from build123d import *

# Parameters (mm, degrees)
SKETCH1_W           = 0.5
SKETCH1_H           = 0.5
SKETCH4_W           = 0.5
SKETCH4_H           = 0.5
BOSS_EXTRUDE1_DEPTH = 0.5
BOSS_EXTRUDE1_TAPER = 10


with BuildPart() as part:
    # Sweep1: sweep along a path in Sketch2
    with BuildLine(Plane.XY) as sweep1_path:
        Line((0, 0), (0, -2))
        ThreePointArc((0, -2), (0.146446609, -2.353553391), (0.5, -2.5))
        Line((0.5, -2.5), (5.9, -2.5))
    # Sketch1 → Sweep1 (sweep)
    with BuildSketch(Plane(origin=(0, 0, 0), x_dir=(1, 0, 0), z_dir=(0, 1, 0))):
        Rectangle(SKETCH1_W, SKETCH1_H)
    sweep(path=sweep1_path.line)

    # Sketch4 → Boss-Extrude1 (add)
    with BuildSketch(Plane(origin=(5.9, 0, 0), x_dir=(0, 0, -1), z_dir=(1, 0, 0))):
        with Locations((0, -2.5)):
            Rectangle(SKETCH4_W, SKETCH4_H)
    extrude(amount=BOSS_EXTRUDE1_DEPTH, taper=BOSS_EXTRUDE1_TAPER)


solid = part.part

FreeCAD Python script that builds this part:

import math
import FreeCAD as App
import Part
import Sketcher
Q = App.Units.Quantity

doc = App.newDocument("Part")
body = doc.addObject("PartDesign::Body", "Body")

sketch1 = body.newObject("Sketcher::SketchObject", "Sketch")
sketch1.AttachmentSupport = (doc.getObject("XZ_Plane"), [""])
sketch1.MapMode = "FlatFace"
sketch1.addGeometry(Part.LineSegment(App.Vector(-0.25, -0.25, 0), App.Vector(-0.25, 0.25, 0)), False)
sketch1.addGeometry(Part.LineSegment(App.Vector(-0.25, 0.25, 0), App.Vector(0.25, 0.25, 0)), False)
sketch1.addGeometry(Part.LineSegment(App.Vector(0.25, 0.25, 0), App.Vector(0.25, -0.25, 0)), False)
sketch1.addGeometry(Part.LineSegment(App.Vector(0.25, -0.25, 0), App.Vector(-0.25, -0.25, 0)), False)
sketch1.addConstraint(Sketcher.Constraint("Coincident", 0, 2, 1, 1))
sketch1.addConstraint(Sketcher.Constraint("Coincident", 1, 2, 2, 1))
sketch1.addConstraint(Sketcher.Constraint("Coincident", 2, 2, 3, 1))
sketch1.addConstraint(Sketcher.Constraint("Coincident", 3, 2, 0, 1))
sketch1.addConstraint(Sketcher.Constraint("Vertical", 0))
sketch1.addConstraint(Sketcher.Constraint("Horizontal", 1))
sketch1.addConstraint(Sketcher.Constraint("Vertical", 2))
sketch1.addConstraint(Sketcher.Constraint("Horizontal", 3))
sketch1.addConstraint(Sketcher.Constraint("Symmetric", 0, 2, 2, 2, -1, 1))
sketch1.addConstraint(Sketcher.Constraint("Equal", 3, 0))
sketch1.addConstraint(Sketcher.Constraint("DistanceX", 1, 1, 1, 2, Q("0.5 mm")))

sketch2 = body.newObject("Sketcher::SketchObject", "Sketch001")
sketch2.AttachmentSupport = (doc.getObject("XY_Plane"), [""])
sketch2.MapMode = "FlatFace"
sketch2.addGeometry(Part.LineSegment(App.Vector(0, 0, 0), App.Vector(0, -2, 0)), False)
sketch2.addGeometry(Part.ArcOfCircle(Part.Circle(App.Vector(0.5, -2, 0), App.Vector(0, 0, 1), 0.5), math.radians(180), math.radians(270)), False)
sketch2.addGeometry(Part.LineSegment(App.Vector(0.5, -2.5, 0), App.Vector(5.9, -2.5, 0)), False)
sketch2.addConstraint(Sketcher.Constraint("Tangent", 0, 2, 1, 1))
sketch2.addConstraint(Sketcher.Constraint("Tangent", 1, 2, 2, 1))
sketch2.addConstraint(Sketcher.Constraint("Vertical", 0))
sketch2.addConstraint(Sketcher.Constraint("Horizontal", 2))
sketch2.addConstraint(Sketcher.Constraint("Coincident", 0, 1, -1, 1))
sketch2.addConstraint(Sketcher.Constraint("Radius", 1, Q("0.5 mm")))
sketch2.addConstraint(Sketcher.Constraint("DistanceY", 0, 2, 0, 1, Q("2 mm")))
sketch2.addConstraint(Sketcher.Constraint("DistanceX", 2, 1, 2, 2, Q("5.4 mm")))
doc.recompute()

additivepipe = body.newObject("PartDesign::AdditivePipe", "AdditivePipe")
additivepipe.Profile = sketch1
additivepipe.Spine = (sketch2, ["Edge1", "Edge2", "Edge3"])

sketch3 = body.newObject("Sketcher::SketchObject", "Sketch002")
sketch3.AttachmentSupport = (doc.getObject("YZ_Plane"), [""])
sketch3.MapMode = "FlatFace"
sketch3.AttachmentOffset = App.Placement(App.Vector(0, 0, 5.9), App.Rotation())
sketch3.addGeometry(Part.LineSegment(App.Vector(-2.25, 0.25, 0), App.Vector(-2.75, 0.25, 0)), False)
sketch3.addGeometry(Part.LineSegment(App.Vector(-2.75, 0.25, 0), App.Vector(-2.75, -0.25, 0)), False)
sketch3.addGeometry(Part.LineSegment(App.Vector(-2.75, -0.25, 0), App.Vector(-2.25, -0.25, 0)), False)
sketch3.addGeometry(Part.LineSegment(App.Vector(-2.25, -0.25, 0), App.Vector(-2.25, 0.25, 0)), False)
sketch3.addConstraint(Sketcher.Constraint("Coincident", 0, 2, 1, 1))
sketch3.addConstraint(Sketcher.Constraint("Coincident", 1, 2, 2, 1))
sketch3.addConstraint(Sketcher.Constraint("Coincident", 2, 2, 3, 1))
sketch3.addConstraint(Sketcher.Constraint("Coincident", 3, 2, 0, 1))
sketch3.addConstraint(Sketcher.Constraint("Horizontal", 0))
sketch3.addConstraint(Sketcher.Constraint("Vertical", 1))
sketch3.addConstraint(Sketcher.Constraint("Horizontal", 2))
sketch3.addConstraint(Sketcher.Constraint("Vertical", 3))
sketch3.addConstraint(Sketcher.Constraint("Equal", 2, 1))
sketch3.addConstraint(Sketcher.Constraint("DistanceX", 0, 2, 0, 1, Q("0.5 mm")))
sketch3.addConstraint(Sketcher.Constraint("DistanceX", 0, 2, -1, 1, Q("2.75 mm")))
sketch3.addConstraint(Sketcher.Constraint("DistanceY", -1, 1, 0, 2, Q("0.25 mm")))
pad1 = body.newObject("PartDesign::Pad", "Pad")
pad1.Profile = sketch3
pad1.Length = 0.5
pad1.TaperAngle = -10

doc.recompute()
